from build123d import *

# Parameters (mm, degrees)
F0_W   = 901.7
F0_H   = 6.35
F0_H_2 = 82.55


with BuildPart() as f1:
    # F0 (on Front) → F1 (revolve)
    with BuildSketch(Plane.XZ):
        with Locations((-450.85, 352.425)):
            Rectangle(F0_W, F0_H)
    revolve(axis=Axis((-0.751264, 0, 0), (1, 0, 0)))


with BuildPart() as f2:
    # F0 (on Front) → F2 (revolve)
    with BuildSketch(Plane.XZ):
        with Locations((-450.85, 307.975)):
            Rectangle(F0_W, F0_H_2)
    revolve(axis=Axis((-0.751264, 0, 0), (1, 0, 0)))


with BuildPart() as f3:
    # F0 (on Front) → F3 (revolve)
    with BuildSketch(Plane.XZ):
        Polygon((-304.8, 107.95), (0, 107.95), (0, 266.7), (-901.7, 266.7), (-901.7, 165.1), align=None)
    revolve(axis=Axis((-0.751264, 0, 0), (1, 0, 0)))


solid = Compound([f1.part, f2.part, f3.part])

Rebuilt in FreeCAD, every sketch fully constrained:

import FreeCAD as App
import Part
import Sketcher

V = App.Vector
Q = App.Units.Quantity


def add_polygon(sketch, points):
    """Adds a closed chain of lines whose ends are joined by coincident constraints."""
    first, n = sketch.GeometryCount, len(points)
    for a, b in zip(points, points[1:] + points[:1]):
        sketch.addGeometry(Part.LineSegment(App.Vector(*a, 0), App.Vector(*b, 0)), False)
    for i in range(n):
        sketch.addConstraint(Sketcher.Constraint("Coincident", first + i, 2, first + (i + 1) % n, 1))

doc = App.newDocument("Part")
body = doc.addObject("PartDesign::Body", "Body")

# Sketch on XZ plane
sketch1 = body.newObject("Sketcher::SketchObject", "Sketch")
sketch1.AttachmentSupport = (doc.getObject("XZ_Plane"), [""])
sketch1.MapMode = "FlatFace"
add_polygon(sketch1, [(-902, 356), (-902, 349), (0, 349), (0, 356)])  # lines 0-3
sketch1.addConstraint([
    Sketcher.Constraint("Vertical", 0),
    Sketcher.Constraint("Horizontal", 1),
    Sketcher.Constraint("Vertical", 2),
    Sketcher.Constraint("Horizontal", 3),
    Sketcher.Constraint("PointOnObject", 1, 2, -2),
    Sketcher.Constraint("DistanceX", 1, 1, 1, 2, Q("35.5 in")),
    Sketcher.Constraint("DistanceY", -1, 1, 2, 2, Q("14 in")),
    Sketcher.Constraint("DistanceY", 0, 2, 0, 1, Q("0.25 in")),
])
revolution = body.newObject("PartDesign::Revolution", "Revolution")
revolution.Profile = sketch1
revolution.ReferenceAxis = (sketch1, ["H_Axis"])
revolution.Angle = 360
body2 = doc.addObject("PartDesign::Body", "Body001")

# Sketch on XZ plane
sketch2 = body2.newObject("Sketcher::SketchObject", "Sketch001")
sketch2.AttachmentSupport = (doc.getObject("XZ_Plane001"), [""])
sketch2.MapMode = "FlatFace"
add_polygon(sketch2, [(-902, 349), (-902, 267), (0, 267), (0, 349)])  # lines 0-3
sketch2.addConstraint([
    Sketcher.Constraint("Vertical", 0),
    Sketcher.Constraint("Horizontal", 1),
    Sketcher.Constraint("Vertical", 2),
    Sketcher.Constraint("Horizontal", 3),
    Sketcher.Constraint("PointOnObject", 1, 2, -2),
    Sketcher.Constraint("DistanceX", 1, 1, 1, 2, Q("35.5 in")),
    Sketcher.Constraint("DistanceY", 0, 2, 0, 1, Q("3.25 in")),
    Sketcher.Constraint("DistanceY", -1, 1, 0, 2, Q("10.5 in")),
])
revolution2 = body2.newObject("PartDesign::Revolution", "Revolution001")
revolution2.Profile = sketch2
revolution2.ReferenceAxis = (sketch2, ["H_Axis"])
revolution2.Angle = 360
body3 = doc.addObject("PartDesign::Body", "Body002")

# Sketch on XZ plane
sketch3 = body3.newObject("Sketcher::SketchObject", "Sketch002")
sketch3.AttachmentSupport = (doc.getObject("XZ_Plane002"), [""])
sketch3.MapMode = "FlatFace"
add_polygon(sketch3, [(-305, 108), (0, 108), (0, 267), (-902, 267), (-902, 165)])  # lines 0-4
sketch3.addConstraint([
    Sketcher.Constraint("Horizontal", 0),
    Sketcher.Constraint("Vertical", 1),
    Sketcher.Constraint("Horizontal", 2),
    Sketcher.Constraint("Vertical", 3),
    Sketcher.Constraint("PointOnObject", 0, 2, -2),
    Sketcher.Constraint("DistanceX", 0, 1, 0, 2, Q("12 in")),
    Sketcher.Constraint("DistanceY", 3, 2, 3, 1, Q("4 in")),
    Sketcher.Constraint("DistanceX", 2, 2, 2, 1, Q("35.5 in")),
    Sketcher.Constraint("DistanceY", 1, 1, 1, 2, Q("6.25 in")),
    Sketcher.Constraint("DistanceY", -1, 1, 1, 2, Q("10.5 in")),
])
revolution3 = body3.newObject("PartDesign::Revolution", "Revolution002")
revolution3.Profile = sketch3
revolution3.ReferenceAxis = (sketch3, ["H_Axis"])
revolution3.Angle = 360

doc.recompute()
